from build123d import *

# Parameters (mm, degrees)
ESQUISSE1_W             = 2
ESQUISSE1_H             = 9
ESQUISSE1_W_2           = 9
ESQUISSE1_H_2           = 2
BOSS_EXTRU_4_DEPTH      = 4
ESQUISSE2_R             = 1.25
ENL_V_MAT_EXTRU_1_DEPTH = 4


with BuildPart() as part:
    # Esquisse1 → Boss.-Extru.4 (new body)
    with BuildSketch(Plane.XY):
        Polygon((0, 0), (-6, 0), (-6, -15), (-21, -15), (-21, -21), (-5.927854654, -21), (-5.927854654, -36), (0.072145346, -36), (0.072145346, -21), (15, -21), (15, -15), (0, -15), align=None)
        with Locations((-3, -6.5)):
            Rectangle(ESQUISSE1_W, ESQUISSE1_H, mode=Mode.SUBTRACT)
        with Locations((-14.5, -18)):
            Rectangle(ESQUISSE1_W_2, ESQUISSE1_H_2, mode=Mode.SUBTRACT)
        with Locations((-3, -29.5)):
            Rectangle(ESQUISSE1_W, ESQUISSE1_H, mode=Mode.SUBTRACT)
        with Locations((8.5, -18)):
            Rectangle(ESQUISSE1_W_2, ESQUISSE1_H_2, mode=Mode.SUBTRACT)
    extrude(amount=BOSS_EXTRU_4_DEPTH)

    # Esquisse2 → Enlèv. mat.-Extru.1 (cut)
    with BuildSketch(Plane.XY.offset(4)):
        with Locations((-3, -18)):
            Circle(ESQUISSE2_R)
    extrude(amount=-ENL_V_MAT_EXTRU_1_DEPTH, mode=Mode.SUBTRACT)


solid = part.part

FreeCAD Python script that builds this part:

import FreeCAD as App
import Part
import Sketcher

V = App.Vector

doc = App.newDocument("Part")
body = doc.addObject("PartDesign::Body", "Body")

sketch1 = body.newObject("Sketcher::SketchObject", "Sketch")
sketch1.AttachmentSupport = (doc.getObject("XY_Plane"), [""])
sketch1.MapMode = "FlatFace"
sketch1.addGeometry([
    Part.LineSegment(V(0, 0, 0), V(-6, 0, 0)),
    Part.LineSegment(V(-6, 0, 0), V(-6, -15, 0)),
    Part.LineSegment(V(-6, -15, 0), V(-21, -15, 0)),
    Part.LineSegment(V(-21, -15, 0), V(-21, -21, 0)),
    Part.LineSegment(V(-21, -21, 0), V(-5.9, -21, 0)),
    Part.LineSegment(V(-5.9, -21, 0), V(-5.9, -36, 0)),
    Part.LineSegment(V(-5.9, -36, 0), V(0.1, -36, 0)),
    Part.LineSegment(V(0.1, -36, 0), V(0.1, -21, 0)),
    Part.LineSegment(V(0.1, -21, 0), V(15, -21, 0)),
    Part.LineSegment(V(15, -21, 0), V(15, -15, 0)),
    Part.LineSegment(V(15, -15, 0), V(0, -15, 0)),
    Part.LineSegment(V(0, -15, 0), V(0, 0, 0)),
    Part.LineSegment(V(-2, -34, 0), V(-4, -34, 0)),
    Part.LineSegment(V(-4, -34, 0), V(-4, -25, 0)),
    Part.LineSegment(V(-4, -25, 0), V(-2, -25, 0)),
    Part.LineSegment(V(-2, -25, 0), V(-2, -34, 0)),
    Part.LineSegment(V(-10, -19, 0), V(-19, -19, 0)),
    Part.LineSegment(V(-19, -19, 0), V(-19, -17, 0)),
    Part.LineSegment(V(-19, -17, 0), V(-10, -17, 0)),
    Part.LineSegment(V(-10, -17, 0), V(-10, -19, 0)),
    Part.LineSegment(V(13, -19, 0), V(4, -19, 0)),
    Part.LineSegment(V(4, -19, 0), V(4, -17, 0)),
    Part.LineSegment(V(4, -17, 0), V(13, -17, 0)),
    Part.LineSegment(V(13, -17, 0), V(13, -19, 0)),
    Part.LineSegment(V(-2, -11, 0), V(-4, -11, 0)),
    Part.LineSegment(V(-4, -11, 0), V(-4, -2, 0)),
    Part.LineSegment(V(-4, -2, 0), V(-2, -2, 0)),
    Part.LineSegment(V(-2, -2, 0), V(-2, -11, 0)),
], False)
sketch1.addConstraint([
    Sketcher.Constraint("Coincident", 0, 2, 1, 1),
    Sketcher.Constraint("Coincident", 1, 2, 2, 1),
    Sketcher.Constraint("Coincident", 2, 2, 3, 1),
    Sketcher.Constraint("Coincident", 3, 2, 4, 1),
    Sketcher.Constraint("Coincident", 4, 2, 5, 1),
    Sketcher.Constraint("Coincident", 5, 2, 6, 1),
    Sketcher.Constraint("Coincident", 6, 2, 7, 1),
    Sketcher.Constraint("Coincident", 7, 2, 8, 1),
    Sketcher.Constraint("Coincident", 8, 2, 9, 1),
    Sketcher.Constraint("Coincident", 9, 2, 10, 1),
    Sketcher.Constraint("Coincident", 10, 2, 11, 1),
    Sketcher.Constraint("Coincident", 11, 2, 0, 1),
    Sketcher.Constraint("Coincident", 12, 2, 13, 1),
    Sketcher.Constraint("Coincident", 13, 2, 14, 1),
    Sketcher.Constraint("Coincident", 14, 2, 15, 1),
    Sketcher.Constraint("Coincident", 15, 2, 12, 1),
    Sketcher.Constraint("Coincident", 16, 2, 17, 1),
    Sketcher.Constraint("Coincident", 17, 2, 18, 1),
    Sketcher.Constraint("Coincident", 18, 2, 19, 1),
    Sketcher.Constraint("Coincident", 19, 2, 16, 1),
    Sketcher.Constraint("Coincident", 20, 2, 21, 1),
    Sketcher.Constraint("Coincident", 21, 2, 22, 1),
    Sketcher.Constraint("Coincident", 22, 2, 23, 1),
    Sketcher.Constraint("Coincident", 23, 2, 20, 1),
    Sketcher.Constraint("Coincident", 24, 2, 25, 1),
    Sketcher.Constraint("Coincident", 25, 2, 26, 1),
    Sketcher.Constraint("Coincident", 26, 2, 27, 1),
    Sketcher.Constraint("Coincident", 27, 2, 24, 1),
    Sketcher.Constraint("Horizontal", 0),
    Sketcher.Constraint("Vertical", 1),
    Sketcher.Constraint("Horizontal", 2),
    Sketcher.Constraint("Vertical", 3),
    Sketcher.Constraint("Horizontal", 4),
    Sketcher.Constraint("Vertical", 5),
    Sketcher.Constraint("Horizontal", 6),
    Sketcher.Constraint("Vertical", 7),
    Sketcher.Constraint("Horizontal", 8),
    Sketcher.Constraint("Vertical", 9),
    Sketcher.Constraint("Horizontal", 10),
    Sketcher.Constraint("Vertical", 11),
    Sketcher.Constraint("Horizontal", 12),
    Sketcher.Constraint("Vertical", 13),
    Sketcher.Constraint("Horizontal", 14),
    Sketcher.Constraint("Vertical", 15),
    Sketcher.Constraint("Horizontal", 16),
    Sketcher.Constraint("Vertical", 17),
    Sketcher.Constraint("Horizontal", 18),
    Sketcher.Constraint("Vertical", 19),
    Sketcher.Constraint("Horizontal", 20),
    Sketcher.Constraint("Vertical", 21),
    Sketcher.Constraint("Horizontal", 22),
    Sketcher.Constraint("Vertical", 23),
    Sketcher.Constraint("Horizontal", 24),
    Sketcher.Constraint("Vertical", 25),
    Sketcher.Constraint("Horizontal", 26),
    Sketcher.Constraint("Vertical", 27),
    Sketcher.Constraint("Coincident", 11, 2, -1, 1),
    Sketcher.Constraint("Horizontal", 4, 2, 7, 2),
    Sketcher.Constraint("Horizontal", 2, 2, 9, 2),
    Sketcher.Constraint("Horizontal", 19, 2, 20, 2),
    Sketcher.Constraint("Horizontal", 18, 2, 21, 2),
    Sketcher.Constraint("Vertical", 13, 2, 24, 2),
    Sketcher.Constraint("Vertical", 15, 2, 26, 2),
    Sketcher.Constraint("Equal", 0, 6),
    Sketcher.Constraint("Equal", 2, 10),
    Sketcher.Constraint("Equal", 18, 20),
    Sketcher.Constraint("Equal", 10, 1),
    Sketcher.Constraint("Equal", 6, 3),
    Sketcher.Constraint("Equal", 1, 5),
    Sketcher.Constraint("Equal", 22, 13),
    Sketcher.Constraint("Equal", 26, 17),
    Sketcher.Constraint("Equal", 15, 25),
    Sketcher.Constraint("DistanceX", 0, 2, 0, 1, 6.0),
    Sketcher.Constraint("DistanceX", 2, 2, 2, 1, 15.0),
    Sketcher.Constraint("DistanceX", 12, 2, 12, 1, 2.0),
    Sketcher.Constraint("DistanceX", 16, 2, 16, 1, 9.0),
    Sketcher.Constraint("DistanceX", 12, 2, -1, 1, 4.0),
    Sketcher.Constraint("DistanceY", 12, 2, -1, 1, 34.0),
    Sketcher.Constraint("DistanceX", 16, 2, -1, 1, 19.0),
    Sketcher.Constraint("DistanceY", 16, 2, -1, 1, 19.0),
    Sketcher.Constraint("DistanceX", -1, 1, 20, 2, 4.0),
    Sketcher.Constraint("DistanceY", 24, 2, -1, 1, 11.0),
    Sketcher.Constraint("DistanceX", 4, 1, 4, 2, 15.072145),
])
pad1 = body.newObject("PartDesign::Pad", "Pad")
pad1.Profile = sketch1
pad1.Length = 4

sketch2 = body.newObject("Sketcher::SketchObject", "Sketch001")
sketch2.AttachmentSupport = (doc.getObject("XY_Plane"), [""])
sketch2.MapMode = "FlatFace"
sketch2.AttachmentOffset = App.Placement(V(0, 0, 4), App.Rotation())
sketch2.addGeometry(Part.Circle(V(-3, -18, 0), V(0, 0, 1), 1.2), False)
sketch2.addConstraint([
    Sketcher.Constraint("Diameter", 0, 2.5),
    Sketcher.Constraint("DistanceX", 0, 3, -1, 1, 3.0),
    Sketcher.Constraint("DistanceY", 0, 3, -1, 1, 18.0),
])
pocket1 = body.newObject("PartDesign::Pocket", "Pocket")
pocket1.Profile = sketch2
pocket1.Length = 4

doc.recompute()
